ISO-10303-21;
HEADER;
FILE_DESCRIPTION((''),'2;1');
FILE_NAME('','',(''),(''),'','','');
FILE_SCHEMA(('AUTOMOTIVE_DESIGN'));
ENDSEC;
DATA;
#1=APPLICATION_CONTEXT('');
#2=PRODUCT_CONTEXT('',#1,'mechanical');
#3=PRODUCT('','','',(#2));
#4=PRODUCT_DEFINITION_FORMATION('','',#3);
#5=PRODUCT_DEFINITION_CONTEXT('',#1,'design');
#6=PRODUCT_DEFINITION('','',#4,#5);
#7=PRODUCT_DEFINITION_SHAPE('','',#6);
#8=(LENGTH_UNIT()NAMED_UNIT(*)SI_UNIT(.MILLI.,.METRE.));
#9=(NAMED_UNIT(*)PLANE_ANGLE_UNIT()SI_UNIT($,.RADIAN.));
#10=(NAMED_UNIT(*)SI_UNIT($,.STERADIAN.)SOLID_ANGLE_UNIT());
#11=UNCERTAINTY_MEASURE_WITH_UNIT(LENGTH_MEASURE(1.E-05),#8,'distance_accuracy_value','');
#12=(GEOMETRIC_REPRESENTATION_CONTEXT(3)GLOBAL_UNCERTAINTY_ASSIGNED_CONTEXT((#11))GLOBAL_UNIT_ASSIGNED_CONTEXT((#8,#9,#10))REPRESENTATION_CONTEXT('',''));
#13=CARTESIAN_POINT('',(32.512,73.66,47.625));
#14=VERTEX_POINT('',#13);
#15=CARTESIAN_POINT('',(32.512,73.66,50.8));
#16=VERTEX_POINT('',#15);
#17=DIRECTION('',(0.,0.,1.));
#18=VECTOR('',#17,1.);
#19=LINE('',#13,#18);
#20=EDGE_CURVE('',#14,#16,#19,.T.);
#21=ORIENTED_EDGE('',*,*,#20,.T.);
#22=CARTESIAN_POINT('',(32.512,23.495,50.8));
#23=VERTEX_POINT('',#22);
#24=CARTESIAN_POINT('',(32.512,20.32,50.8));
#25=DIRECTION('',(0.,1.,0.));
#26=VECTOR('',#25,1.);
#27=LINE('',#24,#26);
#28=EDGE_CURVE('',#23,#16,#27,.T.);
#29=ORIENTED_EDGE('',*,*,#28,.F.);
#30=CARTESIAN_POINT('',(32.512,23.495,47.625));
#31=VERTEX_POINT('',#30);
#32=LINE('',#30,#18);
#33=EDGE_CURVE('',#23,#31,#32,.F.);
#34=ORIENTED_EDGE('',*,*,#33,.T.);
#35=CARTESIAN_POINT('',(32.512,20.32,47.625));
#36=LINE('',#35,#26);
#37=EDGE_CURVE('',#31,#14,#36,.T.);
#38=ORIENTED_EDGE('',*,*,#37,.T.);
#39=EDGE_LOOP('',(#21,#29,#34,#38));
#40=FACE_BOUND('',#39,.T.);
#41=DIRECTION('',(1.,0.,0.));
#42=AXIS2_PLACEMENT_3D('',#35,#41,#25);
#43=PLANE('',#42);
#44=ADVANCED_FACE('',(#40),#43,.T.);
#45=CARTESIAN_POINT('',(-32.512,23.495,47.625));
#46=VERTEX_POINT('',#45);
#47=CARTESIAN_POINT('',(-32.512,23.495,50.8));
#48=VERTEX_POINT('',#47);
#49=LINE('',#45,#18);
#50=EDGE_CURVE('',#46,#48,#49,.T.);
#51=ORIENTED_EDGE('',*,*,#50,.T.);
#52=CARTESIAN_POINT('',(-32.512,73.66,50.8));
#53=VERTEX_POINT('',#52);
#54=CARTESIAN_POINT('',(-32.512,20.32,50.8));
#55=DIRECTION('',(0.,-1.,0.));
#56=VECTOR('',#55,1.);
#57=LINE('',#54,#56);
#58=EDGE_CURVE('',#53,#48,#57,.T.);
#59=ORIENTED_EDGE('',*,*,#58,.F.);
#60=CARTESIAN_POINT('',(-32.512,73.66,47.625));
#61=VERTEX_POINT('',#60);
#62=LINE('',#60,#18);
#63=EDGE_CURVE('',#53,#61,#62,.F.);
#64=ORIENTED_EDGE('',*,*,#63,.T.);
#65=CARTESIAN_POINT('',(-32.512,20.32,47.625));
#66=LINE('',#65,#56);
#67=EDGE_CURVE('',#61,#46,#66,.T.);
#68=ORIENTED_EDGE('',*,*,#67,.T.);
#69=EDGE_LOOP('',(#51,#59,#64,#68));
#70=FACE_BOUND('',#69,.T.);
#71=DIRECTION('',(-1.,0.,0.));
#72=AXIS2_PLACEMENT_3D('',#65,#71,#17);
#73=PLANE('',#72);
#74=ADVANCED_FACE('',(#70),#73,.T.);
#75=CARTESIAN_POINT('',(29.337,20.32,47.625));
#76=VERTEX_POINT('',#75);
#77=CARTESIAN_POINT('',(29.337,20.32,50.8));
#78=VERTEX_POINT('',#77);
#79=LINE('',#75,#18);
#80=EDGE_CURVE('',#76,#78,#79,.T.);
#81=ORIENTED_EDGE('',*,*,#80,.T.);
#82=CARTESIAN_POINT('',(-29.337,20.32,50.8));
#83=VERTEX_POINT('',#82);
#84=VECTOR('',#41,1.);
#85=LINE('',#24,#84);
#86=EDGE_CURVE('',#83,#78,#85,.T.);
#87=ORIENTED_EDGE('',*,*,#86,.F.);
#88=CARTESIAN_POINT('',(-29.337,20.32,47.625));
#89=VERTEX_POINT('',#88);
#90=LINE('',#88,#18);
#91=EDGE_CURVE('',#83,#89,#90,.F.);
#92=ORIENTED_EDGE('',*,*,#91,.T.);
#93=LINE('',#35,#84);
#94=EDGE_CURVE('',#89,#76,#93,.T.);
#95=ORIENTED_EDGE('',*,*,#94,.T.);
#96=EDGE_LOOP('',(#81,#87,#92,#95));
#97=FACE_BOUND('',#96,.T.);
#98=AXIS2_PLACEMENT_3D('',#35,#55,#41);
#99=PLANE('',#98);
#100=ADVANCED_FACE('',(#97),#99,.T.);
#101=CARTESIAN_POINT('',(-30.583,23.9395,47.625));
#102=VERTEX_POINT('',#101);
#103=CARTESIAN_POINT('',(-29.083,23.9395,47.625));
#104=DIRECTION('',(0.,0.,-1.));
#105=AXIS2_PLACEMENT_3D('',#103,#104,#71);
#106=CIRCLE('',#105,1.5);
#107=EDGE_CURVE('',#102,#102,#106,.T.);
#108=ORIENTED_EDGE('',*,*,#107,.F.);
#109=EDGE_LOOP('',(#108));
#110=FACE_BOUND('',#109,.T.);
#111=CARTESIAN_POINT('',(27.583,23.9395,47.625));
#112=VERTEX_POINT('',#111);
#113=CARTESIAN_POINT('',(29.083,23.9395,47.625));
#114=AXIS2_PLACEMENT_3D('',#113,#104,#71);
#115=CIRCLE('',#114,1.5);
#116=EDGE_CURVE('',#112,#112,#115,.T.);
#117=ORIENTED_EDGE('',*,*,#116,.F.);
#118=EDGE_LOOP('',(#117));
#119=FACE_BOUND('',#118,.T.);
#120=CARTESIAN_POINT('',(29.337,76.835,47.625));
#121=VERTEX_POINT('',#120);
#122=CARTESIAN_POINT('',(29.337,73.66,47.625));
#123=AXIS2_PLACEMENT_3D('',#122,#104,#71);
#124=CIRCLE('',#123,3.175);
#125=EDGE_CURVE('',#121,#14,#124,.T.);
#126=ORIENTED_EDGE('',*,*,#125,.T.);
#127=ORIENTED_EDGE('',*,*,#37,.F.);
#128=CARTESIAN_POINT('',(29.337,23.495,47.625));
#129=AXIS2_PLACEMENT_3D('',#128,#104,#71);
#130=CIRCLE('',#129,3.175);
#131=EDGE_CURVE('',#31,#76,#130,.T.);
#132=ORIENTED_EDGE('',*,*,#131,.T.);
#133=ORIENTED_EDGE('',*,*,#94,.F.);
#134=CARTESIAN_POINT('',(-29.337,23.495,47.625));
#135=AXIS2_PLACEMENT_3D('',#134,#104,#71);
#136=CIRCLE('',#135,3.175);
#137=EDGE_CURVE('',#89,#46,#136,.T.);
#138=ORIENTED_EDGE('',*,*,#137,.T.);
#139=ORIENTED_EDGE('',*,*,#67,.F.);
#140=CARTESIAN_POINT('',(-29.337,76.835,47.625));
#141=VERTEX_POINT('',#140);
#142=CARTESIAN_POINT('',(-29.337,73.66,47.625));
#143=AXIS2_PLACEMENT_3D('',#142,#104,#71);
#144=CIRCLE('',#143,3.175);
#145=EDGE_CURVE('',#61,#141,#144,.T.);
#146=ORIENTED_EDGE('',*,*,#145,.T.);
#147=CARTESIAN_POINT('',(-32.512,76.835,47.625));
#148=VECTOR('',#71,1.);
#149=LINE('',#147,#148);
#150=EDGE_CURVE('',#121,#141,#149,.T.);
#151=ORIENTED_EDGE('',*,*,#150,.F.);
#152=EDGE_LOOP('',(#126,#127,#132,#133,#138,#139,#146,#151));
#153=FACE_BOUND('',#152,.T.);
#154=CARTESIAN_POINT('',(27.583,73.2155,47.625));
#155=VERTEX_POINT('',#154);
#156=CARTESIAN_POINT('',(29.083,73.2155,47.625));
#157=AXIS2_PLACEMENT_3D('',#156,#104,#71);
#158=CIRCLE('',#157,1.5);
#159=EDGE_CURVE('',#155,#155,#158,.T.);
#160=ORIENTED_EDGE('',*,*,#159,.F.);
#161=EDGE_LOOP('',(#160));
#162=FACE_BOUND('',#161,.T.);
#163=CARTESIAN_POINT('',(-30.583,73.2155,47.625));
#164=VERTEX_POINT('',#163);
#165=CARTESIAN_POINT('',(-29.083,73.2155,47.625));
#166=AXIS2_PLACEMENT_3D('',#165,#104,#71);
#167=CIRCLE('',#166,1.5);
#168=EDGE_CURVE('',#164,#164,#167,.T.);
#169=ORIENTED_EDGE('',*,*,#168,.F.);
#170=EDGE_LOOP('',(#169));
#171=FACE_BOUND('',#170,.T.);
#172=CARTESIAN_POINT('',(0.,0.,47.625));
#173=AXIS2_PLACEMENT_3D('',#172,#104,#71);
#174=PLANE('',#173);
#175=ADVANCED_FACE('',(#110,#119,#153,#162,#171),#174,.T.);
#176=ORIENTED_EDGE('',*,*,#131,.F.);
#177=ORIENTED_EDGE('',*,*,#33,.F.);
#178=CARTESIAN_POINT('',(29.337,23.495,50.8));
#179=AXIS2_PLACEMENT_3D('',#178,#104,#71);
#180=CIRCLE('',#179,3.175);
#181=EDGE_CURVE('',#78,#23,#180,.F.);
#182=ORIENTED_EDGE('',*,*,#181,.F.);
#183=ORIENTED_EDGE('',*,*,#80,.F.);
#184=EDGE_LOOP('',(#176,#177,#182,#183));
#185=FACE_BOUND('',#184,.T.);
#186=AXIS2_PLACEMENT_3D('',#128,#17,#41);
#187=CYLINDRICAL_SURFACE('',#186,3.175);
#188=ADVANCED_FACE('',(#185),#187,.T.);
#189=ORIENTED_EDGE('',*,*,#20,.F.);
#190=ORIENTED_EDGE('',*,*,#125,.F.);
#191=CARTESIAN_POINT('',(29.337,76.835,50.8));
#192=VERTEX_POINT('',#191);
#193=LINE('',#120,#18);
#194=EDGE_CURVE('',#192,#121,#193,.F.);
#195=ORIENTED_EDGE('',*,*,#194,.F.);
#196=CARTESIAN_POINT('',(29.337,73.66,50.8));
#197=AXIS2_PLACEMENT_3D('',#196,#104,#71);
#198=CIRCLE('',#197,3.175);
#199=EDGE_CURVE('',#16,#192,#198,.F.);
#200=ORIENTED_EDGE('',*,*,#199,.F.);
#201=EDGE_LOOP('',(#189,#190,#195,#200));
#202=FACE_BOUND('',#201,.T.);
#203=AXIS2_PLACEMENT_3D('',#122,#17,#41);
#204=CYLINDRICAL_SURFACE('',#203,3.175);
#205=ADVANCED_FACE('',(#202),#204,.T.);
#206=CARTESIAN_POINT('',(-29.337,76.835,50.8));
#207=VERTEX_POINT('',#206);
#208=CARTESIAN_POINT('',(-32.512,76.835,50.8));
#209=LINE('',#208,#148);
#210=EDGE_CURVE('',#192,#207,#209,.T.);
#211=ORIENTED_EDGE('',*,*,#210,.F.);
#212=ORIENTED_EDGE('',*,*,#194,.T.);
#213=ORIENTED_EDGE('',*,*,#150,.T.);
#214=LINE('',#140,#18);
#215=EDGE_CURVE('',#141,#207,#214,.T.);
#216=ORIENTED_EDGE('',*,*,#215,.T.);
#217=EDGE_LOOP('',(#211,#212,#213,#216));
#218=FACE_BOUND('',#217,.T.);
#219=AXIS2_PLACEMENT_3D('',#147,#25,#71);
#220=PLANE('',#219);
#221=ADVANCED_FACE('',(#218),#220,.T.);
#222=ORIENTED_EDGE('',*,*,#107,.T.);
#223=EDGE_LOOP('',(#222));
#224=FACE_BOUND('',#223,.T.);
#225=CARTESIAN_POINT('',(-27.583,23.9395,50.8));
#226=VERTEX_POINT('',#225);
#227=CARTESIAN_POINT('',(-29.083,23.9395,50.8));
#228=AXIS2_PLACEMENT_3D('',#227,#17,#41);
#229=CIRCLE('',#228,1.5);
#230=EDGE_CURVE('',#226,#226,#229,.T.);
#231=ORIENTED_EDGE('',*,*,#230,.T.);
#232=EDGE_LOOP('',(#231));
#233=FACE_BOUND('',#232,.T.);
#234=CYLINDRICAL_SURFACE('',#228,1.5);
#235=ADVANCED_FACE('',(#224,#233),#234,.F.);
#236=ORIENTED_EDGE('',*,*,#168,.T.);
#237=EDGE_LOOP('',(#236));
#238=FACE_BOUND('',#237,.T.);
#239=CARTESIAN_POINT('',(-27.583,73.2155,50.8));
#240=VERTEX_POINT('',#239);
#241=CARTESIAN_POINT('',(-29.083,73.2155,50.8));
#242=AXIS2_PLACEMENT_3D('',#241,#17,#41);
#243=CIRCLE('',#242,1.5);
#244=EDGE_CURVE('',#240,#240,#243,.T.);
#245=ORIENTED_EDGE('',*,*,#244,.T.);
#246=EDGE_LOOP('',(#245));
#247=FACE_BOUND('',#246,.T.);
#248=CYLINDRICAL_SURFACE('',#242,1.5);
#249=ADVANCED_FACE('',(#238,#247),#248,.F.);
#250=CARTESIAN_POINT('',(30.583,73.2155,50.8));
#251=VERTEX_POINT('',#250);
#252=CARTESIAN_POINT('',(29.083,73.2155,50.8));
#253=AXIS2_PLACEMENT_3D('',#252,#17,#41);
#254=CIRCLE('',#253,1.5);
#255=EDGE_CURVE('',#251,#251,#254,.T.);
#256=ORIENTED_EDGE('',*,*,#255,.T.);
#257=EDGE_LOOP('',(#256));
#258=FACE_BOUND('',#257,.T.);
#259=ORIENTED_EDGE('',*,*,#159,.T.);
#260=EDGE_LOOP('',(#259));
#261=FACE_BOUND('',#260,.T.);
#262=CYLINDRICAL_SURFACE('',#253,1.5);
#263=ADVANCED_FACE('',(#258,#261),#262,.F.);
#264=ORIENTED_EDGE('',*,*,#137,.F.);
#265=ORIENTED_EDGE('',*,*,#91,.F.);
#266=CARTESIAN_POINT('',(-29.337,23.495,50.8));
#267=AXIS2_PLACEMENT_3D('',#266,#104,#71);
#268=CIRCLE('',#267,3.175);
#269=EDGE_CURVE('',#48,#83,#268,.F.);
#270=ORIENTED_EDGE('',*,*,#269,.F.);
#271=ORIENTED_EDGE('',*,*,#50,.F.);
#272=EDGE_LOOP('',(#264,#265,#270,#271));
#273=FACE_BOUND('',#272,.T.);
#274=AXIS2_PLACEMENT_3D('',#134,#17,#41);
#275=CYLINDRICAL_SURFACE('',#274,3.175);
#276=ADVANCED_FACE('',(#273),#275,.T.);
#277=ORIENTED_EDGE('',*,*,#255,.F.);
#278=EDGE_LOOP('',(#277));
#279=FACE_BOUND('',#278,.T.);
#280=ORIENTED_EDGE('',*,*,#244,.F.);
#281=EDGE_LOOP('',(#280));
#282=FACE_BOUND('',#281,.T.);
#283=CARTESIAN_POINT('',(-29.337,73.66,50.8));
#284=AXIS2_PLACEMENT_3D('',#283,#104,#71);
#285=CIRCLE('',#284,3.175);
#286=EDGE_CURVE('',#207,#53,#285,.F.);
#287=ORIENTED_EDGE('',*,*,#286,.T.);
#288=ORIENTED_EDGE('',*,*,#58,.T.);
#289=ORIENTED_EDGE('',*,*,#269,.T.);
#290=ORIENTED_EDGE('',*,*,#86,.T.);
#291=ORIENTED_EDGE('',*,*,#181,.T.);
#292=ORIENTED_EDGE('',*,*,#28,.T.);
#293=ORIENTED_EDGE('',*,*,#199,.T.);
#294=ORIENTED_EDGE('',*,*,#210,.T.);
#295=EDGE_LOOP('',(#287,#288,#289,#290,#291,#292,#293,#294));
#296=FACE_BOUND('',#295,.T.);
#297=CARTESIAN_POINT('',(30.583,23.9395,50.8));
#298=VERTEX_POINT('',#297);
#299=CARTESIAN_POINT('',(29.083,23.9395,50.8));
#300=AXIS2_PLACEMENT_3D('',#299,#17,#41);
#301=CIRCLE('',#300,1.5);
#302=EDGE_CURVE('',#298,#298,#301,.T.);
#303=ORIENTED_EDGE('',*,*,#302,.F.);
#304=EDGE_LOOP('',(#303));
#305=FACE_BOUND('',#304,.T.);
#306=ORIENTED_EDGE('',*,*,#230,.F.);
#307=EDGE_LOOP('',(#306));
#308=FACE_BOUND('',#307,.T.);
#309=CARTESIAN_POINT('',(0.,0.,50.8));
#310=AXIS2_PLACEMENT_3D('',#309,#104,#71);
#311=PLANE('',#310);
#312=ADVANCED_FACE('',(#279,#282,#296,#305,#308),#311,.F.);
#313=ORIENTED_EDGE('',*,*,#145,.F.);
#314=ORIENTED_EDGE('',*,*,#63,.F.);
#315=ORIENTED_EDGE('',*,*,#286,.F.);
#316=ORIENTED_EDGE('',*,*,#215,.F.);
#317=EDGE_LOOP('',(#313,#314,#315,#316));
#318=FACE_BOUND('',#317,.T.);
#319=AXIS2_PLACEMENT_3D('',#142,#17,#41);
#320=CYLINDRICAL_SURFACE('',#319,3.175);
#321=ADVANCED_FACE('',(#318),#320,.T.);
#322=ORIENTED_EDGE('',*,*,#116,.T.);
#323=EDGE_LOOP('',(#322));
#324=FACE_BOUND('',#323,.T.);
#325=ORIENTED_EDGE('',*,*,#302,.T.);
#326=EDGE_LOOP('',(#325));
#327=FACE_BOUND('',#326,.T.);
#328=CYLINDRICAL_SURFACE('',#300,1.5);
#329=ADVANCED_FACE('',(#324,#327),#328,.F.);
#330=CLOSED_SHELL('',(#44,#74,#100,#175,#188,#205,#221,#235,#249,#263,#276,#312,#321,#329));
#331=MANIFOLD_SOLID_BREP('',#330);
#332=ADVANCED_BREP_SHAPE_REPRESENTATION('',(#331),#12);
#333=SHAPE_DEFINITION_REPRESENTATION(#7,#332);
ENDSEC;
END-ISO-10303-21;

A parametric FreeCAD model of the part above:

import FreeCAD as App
import Part
import Sketcher
from FreeCAD import Vector
Q = App.Units.Quantity


def edges_at(feature, points):
    """Names of the edges that pass closest to the given points."""
    edges = feature.Shape.Edges
    near = lambda p: min(range(len(edges)), key=lambda i: edges[i].distToShape(Part.Vertex(*p))[0])
    return sorted({f"Edge{near(p) + 1}" for p in points})

doc = App.newDocument("Part")
body = doc.addObject("PartDesign::Body", "Body")

# Sketch on XY plane
sketch1 = doc.addObject("Sketcher::SketchObject", "Sketch")
body.addObject(sketch1)
sketch1.AttachmentSupport = (doc.XY_Plane, [""])
sketch1.MapMode = "FlatFace"
sketch1.AttachmentOffset = App.Placement(Vector(0, 0, 2 * 25.4), App.Rotation())
sketch1.addGeometry([
    Part.LineSegment(Vector(-33, 77, 0), Vector(-33, 20, 0)),
    Part.LineSegment(Vector(-33, 20, 0), Vector(33, 20, 0)),
    Part.LineSegment(Vector(33, 20, 0), Vector(33, 77, 0)),
    Part.LineSegment(Vector(33, 77, 0), Vector(-33, 77, 0)),
], False)
sketch1.addConstraint([
    Sketcher.Constraint("Coincident", 0, 2, 1, 1),
    Sketcher.Constraint("Coincident", 1, 2, 2, 1),
    Sketcher.Constraint("Coincident", 2, 2, 3, 1),
    Sketcher.Constraint("Coincident", 3, 2, 0, 1),
    Sketcher.Constraint("Vertical", 0),
    Sketcher.Constraint("Horizontal", 1),
    Sketcher.Constraint("Vertical", 2),
    Sketcher.Constraint("Horizontal", 3),
    Sketcher.Constraint("DistanceX", 1, 1, 1, 2, Q("2.56 in")),
    Sketcher.Constraint("DistanceY", -1, 1, 0, 2, Q("0.8 in")),
    Sketcher.Constraint("DistanceY", 0, 2, 0, 1, Q("2.225 in")),
    Sketcher.Constraint("DistanceX", 0, 2, -1, 1, Q("1.28 in")),
])
pad1 = doc.addObject("PartDesign::Pad", "Pad")
body.addObject(pad1)
pad1.Profile = sketch1
pad1.Length = Q("0.125 in")
pad1.Reversed = True

# Sketch on XY plane
sketch2 = doc.addObject("Sketcher::SketchObject", "Sketch001")
body.addObject(sketch2)
sketch2.AttachmentSupport = (doc.XY_Plane, [""])
sketch2.MapMode = "FlatFace"
sketch2.AttachmentOffset = App.Placement(Vector(0, 0, 2 * 25.4), App.Rotation())
sketch2.addGeometry([
    Part.Circle(Vector(29.1, 73.2, 0), Vector(0, 0, 1), 1.5),
    Part.Circle(Vector(29.1, 23.9, 0), Vector(0, 0, 1), 1.5),
    Part.Circle(Vector(-29.1, 23.9, 0), Vector(0, 0, 1), 1.5),
    Part.Circle(Vector(-29.1, 73.2, 0), Vector(0, 0, 1), 1.5),
], False)
sketch2.addConstraint([
    Sketcher.Constraint("Equal", 0, 1),
    Sketcher.Constraint("Equal", 1, 2),
    Sketcher.Constraint("Equal", 2, 3),
    Sketcher.Constraint("Symmetric", 1, 3, 2, 3, -2),
    Sketcher.Constraint("Symmetric", 0, 3, 3, 3, -2),
    Sketcher.Constraint("Vertical", 0, 3, 1, 3),
    Sketcher.Constraint("Diameter", 0, Q("3 mm")),
    Sketcher.Constraint("DistanceY", 1, 3, 0, 3, Q("1.94 in")),
    Sketcher.Constraint("DistanceX", 2, 3, 1, 3, Q("2.29 in")),
    Sketcher.Constraint("DistanceY", -1, 1, 0, 3, Q("2.8825 in")),
])
doc.recompute()
hole = doc.addObject("PartDesign::Hole", "Hole")
body.addObject(hole)
hole.Profile = sketch2
hole.ThreadType = "None"
hole.Diameter = 3
hole.DepthType = "Dimension"
hole.Depth = Q("0.125 in")
hole.DrillPoint = "Flat"
doc.recompute()

fillet = doc.addObject("PartDesign::Fillet", "Fillet")
body.addObject(fillet)
fillet.Base = (hole, edges_at(hole, [
    (-32.512, 76.835, 49.212),
    (32.512, 76.835, 49.212),
    (32.512, 20.32, 49.212),
    (-32.512, 20.32, 49.212),
]))
fillet.Radius = Q("0.125 in")

doc.recompute()
